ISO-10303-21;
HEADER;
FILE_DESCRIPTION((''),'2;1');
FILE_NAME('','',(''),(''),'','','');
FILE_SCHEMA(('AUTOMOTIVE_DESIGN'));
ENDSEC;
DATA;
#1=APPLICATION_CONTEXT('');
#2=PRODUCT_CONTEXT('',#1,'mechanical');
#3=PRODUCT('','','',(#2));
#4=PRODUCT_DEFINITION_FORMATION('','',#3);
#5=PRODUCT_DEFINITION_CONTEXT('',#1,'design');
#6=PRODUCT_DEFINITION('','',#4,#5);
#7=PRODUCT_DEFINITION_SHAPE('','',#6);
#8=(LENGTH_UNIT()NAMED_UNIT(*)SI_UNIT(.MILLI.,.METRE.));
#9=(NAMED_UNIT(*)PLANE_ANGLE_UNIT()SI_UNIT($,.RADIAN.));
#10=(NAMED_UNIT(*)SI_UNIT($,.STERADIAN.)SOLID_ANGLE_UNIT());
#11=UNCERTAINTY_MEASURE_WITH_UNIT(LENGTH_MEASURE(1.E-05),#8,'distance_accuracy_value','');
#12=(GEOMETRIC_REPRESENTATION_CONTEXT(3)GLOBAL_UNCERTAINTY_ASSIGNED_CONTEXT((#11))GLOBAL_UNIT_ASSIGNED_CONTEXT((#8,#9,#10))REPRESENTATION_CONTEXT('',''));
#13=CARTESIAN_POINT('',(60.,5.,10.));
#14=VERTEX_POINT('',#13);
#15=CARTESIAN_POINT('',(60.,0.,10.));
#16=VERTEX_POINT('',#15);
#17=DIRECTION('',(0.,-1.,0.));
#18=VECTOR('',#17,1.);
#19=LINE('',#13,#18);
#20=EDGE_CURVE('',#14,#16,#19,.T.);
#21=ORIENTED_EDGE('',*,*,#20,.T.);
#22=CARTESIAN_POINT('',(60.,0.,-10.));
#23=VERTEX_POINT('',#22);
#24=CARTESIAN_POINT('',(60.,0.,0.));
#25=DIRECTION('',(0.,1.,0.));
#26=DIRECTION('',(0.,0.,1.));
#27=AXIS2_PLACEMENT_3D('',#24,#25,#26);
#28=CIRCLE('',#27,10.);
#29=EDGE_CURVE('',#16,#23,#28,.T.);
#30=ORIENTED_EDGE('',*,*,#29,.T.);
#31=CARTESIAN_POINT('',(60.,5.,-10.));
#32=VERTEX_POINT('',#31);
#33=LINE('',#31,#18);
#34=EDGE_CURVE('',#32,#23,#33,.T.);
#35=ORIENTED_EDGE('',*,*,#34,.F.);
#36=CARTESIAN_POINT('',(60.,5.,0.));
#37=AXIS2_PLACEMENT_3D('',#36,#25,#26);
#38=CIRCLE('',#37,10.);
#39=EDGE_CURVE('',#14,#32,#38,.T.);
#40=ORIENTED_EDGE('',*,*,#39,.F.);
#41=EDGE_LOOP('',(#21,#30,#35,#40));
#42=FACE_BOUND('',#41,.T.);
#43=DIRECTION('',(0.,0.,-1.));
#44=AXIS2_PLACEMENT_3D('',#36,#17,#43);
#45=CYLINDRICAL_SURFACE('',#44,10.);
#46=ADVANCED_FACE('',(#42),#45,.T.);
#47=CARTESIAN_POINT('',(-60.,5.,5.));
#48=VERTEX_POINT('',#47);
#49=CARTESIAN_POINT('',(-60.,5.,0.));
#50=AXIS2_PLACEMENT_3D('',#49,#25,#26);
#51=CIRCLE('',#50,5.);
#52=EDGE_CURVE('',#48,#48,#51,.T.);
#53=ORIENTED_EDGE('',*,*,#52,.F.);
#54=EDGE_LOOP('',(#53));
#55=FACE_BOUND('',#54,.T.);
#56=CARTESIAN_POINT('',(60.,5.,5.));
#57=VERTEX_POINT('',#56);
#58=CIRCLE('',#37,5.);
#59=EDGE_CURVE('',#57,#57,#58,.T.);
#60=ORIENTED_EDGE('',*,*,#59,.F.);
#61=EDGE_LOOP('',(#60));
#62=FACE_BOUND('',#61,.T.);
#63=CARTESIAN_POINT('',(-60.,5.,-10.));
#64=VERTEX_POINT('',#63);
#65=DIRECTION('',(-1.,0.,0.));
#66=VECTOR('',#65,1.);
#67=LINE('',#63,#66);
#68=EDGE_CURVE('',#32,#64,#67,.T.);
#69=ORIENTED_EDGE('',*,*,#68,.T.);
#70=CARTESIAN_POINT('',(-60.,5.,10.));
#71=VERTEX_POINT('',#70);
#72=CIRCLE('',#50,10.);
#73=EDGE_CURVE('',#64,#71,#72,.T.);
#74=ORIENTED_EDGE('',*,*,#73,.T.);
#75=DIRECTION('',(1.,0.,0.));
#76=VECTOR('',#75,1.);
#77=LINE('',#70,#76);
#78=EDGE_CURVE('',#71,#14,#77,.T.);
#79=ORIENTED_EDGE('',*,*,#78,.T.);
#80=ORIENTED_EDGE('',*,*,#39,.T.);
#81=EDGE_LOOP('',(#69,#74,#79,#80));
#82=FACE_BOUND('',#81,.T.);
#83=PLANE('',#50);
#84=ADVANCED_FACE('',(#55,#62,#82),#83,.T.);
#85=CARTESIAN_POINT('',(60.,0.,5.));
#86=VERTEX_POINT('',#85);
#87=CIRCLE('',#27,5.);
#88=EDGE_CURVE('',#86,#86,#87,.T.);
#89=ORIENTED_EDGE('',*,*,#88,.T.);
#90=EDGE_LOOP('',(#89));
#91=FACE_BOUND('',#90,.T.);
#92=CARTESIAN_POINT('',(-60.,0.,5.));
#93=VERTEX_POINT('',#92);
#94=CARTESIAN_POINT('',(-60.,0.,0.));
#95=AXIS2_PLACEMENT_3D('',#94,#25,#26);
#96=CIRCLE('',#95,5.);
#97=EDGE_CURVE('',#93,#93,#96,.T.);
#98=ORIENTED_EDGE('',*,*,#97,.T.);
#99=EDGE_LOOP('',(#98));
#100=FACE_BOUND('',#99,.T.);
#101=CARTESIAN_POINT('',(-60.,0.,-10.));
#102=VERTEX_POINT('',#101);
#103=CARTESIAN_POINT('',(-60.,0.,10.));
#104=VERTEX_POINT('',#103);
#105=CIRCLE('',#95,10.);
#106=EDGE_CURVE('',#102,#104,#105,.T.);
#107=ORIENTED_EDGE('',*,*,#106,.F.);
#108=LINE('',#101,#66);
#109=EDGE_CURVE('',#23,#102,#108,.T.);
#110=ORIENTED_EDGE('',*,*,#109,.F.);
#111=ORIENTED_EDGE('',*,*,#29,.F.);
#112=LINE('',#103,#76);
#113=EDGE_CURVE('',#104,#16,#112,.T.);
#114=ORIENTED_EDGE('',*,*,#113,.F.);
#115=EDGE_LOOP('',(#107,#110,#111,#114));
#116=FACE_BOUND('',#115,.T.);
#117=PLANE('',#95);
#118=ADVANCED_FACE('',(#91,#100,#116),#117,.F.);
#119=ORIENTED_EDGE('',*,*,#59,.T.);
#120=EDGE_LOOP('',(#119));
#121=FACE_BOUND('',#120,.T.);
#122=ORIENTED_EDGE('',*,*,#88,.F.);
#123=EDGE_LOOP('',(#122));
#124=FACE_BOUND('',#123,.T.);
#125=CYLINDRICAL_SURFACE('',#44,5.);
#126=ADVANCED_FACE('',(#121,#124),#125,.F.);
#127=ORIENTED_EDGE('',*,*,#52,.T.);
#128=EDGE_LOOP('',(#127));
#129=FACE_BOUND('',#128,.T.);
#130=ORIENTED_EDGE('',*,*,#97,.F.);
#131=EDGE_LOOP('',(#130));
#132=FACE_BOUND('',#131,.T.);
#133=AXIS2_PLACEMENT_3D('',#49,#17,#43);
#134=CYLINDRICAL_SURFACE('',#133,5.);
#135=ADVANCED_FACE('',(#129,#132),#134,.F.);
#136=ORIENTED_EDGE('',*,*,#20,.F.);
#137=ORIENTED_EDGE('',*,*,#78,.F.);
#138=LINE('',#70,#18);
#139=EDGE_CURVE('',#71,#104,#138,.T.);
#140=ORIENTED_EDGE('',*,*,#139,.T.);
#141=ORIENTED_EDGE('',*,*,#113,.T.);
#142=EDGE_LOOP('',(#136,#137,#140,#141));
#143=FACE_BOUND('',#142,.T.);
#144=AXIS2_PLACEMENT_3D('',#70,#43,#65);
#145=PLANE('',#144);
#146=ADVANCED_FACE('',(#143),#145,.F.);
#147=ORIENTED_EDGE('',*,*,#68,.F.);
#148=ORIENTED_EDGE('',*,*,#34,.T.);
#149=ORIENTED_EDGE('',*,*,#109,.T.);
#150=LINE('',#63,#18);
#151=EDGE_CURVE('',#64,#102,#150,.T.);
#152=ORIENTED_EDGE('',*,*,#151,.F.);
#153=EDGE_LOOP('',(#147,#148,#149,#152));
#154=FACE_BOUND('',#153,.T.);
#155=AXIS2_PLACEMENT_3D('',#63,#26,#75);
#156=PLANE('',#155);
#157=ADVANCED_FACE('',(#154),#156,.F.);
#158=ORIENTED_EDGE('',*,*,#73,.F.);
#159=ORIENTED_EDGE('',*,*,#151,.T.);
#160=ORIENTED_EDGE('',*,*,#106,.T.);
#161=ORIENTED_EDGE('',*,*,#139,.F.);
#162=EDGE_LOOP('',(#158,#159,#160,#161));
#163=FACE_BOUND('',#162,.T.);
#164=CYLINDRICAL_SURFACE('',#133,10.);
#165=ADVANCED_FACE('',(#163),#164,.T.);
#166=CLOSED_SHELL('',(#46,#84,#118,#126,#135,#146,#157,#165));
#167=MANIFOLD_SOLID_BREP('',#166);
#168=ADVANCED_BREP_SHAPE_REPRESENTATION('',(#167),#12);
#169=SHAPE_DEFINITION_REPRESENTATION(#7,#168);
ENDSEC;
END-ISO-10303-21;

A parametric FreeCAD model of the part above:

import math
import FreeCAD as App
import Part
import Sketcher
from FreeCAD import Vector

doc = App.newDocument("Part")
params = doc.addObject("Spreadsheet::Sheet", "Params")
for row, (alias, value) in enumerate([
    ("sketch1_diameter", "10 mm"),
    ("sketch1_radius", "10 mm"),
    ("sketch1_width", "120 mm"),
    ("pad1_length", "5 mm"),
], start=1):
    params.set(f"A{row}", alias)
    params.set(f"B{row}", "=" + value)
    params.setAlias(f"B{row}", alias)

body = doc.addObject("PartDesign::Body", "Body")

sketch1 = body.newObject("Sketcher::SketchObject", "Sketch")
sketch1.AttachmentSupport = (doc.getObject("XZ_Plane"), [""])
sketch1.MapMode = "FlatFace"
sketch1.addGeometry(Part.LineSegment(Vector(60, -10, 0), Vector(-60, -10, 0)), False)
sketch1.addGeometry(Part.ArcOfCircle(Part.Circle(Vector(-60, 0, 0), Vector(0, 0, 1), 10), math.radians(90), math.radians(270)), False)
sketch1.addGeometry(Part.LineSegment(Vector(-60, 10, 0), Vector(60, 10, 0)), False)
sketch1.addGeometry(Part.ArcOfCircle(Part.Circle(Vector(60, 0, 0), Vector(0, 0, 1), 10), math.radians(-90), math.radians(90)), False)
sketch1.addGeometry(Part.Circle(Vector(60, 0, 0), Vector(0, 0, 1), 5), False)
sketch1.addGeometry(Part.Circle(Vector(-60, 0, 0), Vector(0, 0, 1), 5), False)
sketch1.addConstraint(Sketcher.Constraint("Tangent", 0, 2, 1, 2))
sketch1.addConstraint(Sketcher.Constraint("Tangent", 1, 1, 2, 1))
sketch1.addConstraint(Sketcher.Constraint("Tangent", 2, 2, 3, 2))
sketch1.addConstraint(Sketcher.Constraint("Tangent", 3, 1, 0, 1))
sketch1.addConstraint(Sketcher.Constraint("Horizontal", 0))
sketch1.addConstraint(Sketcher.Constraint("Horizontal", 2))
sketch1.addConstraint(Sketcher.Constraint("Coincident", 4, 3, 3, 3))
sketch1.addConstraint(Sketcher.Constraint("Coincident", 5, 3, 1, 3))
sketch1.addConstraint(Sketcher.Constraint("Equal", 4, 5))
sketch1.addConstraint(Sketcher.Constraint("Symmetric", 1, 3, 3, 3, -1, 1))
sketch1.addConstraint(Sketcher.Constraint("Diameter", 4, 10.0))
sketch1.addConstraint(Sketcher.Constraint("Radius", 1, 10.0))
sketch1.addConstraint(Sketcher.Constraint("DistanceX", 0, 2, 0, 1, 120.0))
sketch1.setExpression("Constraints[10]", "Params.sketch1_diameter")
sketch1.setExpression("Constraints[11]", "Params.sketch1_radius")
sketch1.setExpression("Constraints[12]", "Params.sketch1_width")
pad1 = body.newObject("PartDesign::Pad", "Pad")
pad1.Profile = sketch1
pad1.setExpression("Length", "Params.pad1_length")
pad1.Reversed = True

doc.recompute()
